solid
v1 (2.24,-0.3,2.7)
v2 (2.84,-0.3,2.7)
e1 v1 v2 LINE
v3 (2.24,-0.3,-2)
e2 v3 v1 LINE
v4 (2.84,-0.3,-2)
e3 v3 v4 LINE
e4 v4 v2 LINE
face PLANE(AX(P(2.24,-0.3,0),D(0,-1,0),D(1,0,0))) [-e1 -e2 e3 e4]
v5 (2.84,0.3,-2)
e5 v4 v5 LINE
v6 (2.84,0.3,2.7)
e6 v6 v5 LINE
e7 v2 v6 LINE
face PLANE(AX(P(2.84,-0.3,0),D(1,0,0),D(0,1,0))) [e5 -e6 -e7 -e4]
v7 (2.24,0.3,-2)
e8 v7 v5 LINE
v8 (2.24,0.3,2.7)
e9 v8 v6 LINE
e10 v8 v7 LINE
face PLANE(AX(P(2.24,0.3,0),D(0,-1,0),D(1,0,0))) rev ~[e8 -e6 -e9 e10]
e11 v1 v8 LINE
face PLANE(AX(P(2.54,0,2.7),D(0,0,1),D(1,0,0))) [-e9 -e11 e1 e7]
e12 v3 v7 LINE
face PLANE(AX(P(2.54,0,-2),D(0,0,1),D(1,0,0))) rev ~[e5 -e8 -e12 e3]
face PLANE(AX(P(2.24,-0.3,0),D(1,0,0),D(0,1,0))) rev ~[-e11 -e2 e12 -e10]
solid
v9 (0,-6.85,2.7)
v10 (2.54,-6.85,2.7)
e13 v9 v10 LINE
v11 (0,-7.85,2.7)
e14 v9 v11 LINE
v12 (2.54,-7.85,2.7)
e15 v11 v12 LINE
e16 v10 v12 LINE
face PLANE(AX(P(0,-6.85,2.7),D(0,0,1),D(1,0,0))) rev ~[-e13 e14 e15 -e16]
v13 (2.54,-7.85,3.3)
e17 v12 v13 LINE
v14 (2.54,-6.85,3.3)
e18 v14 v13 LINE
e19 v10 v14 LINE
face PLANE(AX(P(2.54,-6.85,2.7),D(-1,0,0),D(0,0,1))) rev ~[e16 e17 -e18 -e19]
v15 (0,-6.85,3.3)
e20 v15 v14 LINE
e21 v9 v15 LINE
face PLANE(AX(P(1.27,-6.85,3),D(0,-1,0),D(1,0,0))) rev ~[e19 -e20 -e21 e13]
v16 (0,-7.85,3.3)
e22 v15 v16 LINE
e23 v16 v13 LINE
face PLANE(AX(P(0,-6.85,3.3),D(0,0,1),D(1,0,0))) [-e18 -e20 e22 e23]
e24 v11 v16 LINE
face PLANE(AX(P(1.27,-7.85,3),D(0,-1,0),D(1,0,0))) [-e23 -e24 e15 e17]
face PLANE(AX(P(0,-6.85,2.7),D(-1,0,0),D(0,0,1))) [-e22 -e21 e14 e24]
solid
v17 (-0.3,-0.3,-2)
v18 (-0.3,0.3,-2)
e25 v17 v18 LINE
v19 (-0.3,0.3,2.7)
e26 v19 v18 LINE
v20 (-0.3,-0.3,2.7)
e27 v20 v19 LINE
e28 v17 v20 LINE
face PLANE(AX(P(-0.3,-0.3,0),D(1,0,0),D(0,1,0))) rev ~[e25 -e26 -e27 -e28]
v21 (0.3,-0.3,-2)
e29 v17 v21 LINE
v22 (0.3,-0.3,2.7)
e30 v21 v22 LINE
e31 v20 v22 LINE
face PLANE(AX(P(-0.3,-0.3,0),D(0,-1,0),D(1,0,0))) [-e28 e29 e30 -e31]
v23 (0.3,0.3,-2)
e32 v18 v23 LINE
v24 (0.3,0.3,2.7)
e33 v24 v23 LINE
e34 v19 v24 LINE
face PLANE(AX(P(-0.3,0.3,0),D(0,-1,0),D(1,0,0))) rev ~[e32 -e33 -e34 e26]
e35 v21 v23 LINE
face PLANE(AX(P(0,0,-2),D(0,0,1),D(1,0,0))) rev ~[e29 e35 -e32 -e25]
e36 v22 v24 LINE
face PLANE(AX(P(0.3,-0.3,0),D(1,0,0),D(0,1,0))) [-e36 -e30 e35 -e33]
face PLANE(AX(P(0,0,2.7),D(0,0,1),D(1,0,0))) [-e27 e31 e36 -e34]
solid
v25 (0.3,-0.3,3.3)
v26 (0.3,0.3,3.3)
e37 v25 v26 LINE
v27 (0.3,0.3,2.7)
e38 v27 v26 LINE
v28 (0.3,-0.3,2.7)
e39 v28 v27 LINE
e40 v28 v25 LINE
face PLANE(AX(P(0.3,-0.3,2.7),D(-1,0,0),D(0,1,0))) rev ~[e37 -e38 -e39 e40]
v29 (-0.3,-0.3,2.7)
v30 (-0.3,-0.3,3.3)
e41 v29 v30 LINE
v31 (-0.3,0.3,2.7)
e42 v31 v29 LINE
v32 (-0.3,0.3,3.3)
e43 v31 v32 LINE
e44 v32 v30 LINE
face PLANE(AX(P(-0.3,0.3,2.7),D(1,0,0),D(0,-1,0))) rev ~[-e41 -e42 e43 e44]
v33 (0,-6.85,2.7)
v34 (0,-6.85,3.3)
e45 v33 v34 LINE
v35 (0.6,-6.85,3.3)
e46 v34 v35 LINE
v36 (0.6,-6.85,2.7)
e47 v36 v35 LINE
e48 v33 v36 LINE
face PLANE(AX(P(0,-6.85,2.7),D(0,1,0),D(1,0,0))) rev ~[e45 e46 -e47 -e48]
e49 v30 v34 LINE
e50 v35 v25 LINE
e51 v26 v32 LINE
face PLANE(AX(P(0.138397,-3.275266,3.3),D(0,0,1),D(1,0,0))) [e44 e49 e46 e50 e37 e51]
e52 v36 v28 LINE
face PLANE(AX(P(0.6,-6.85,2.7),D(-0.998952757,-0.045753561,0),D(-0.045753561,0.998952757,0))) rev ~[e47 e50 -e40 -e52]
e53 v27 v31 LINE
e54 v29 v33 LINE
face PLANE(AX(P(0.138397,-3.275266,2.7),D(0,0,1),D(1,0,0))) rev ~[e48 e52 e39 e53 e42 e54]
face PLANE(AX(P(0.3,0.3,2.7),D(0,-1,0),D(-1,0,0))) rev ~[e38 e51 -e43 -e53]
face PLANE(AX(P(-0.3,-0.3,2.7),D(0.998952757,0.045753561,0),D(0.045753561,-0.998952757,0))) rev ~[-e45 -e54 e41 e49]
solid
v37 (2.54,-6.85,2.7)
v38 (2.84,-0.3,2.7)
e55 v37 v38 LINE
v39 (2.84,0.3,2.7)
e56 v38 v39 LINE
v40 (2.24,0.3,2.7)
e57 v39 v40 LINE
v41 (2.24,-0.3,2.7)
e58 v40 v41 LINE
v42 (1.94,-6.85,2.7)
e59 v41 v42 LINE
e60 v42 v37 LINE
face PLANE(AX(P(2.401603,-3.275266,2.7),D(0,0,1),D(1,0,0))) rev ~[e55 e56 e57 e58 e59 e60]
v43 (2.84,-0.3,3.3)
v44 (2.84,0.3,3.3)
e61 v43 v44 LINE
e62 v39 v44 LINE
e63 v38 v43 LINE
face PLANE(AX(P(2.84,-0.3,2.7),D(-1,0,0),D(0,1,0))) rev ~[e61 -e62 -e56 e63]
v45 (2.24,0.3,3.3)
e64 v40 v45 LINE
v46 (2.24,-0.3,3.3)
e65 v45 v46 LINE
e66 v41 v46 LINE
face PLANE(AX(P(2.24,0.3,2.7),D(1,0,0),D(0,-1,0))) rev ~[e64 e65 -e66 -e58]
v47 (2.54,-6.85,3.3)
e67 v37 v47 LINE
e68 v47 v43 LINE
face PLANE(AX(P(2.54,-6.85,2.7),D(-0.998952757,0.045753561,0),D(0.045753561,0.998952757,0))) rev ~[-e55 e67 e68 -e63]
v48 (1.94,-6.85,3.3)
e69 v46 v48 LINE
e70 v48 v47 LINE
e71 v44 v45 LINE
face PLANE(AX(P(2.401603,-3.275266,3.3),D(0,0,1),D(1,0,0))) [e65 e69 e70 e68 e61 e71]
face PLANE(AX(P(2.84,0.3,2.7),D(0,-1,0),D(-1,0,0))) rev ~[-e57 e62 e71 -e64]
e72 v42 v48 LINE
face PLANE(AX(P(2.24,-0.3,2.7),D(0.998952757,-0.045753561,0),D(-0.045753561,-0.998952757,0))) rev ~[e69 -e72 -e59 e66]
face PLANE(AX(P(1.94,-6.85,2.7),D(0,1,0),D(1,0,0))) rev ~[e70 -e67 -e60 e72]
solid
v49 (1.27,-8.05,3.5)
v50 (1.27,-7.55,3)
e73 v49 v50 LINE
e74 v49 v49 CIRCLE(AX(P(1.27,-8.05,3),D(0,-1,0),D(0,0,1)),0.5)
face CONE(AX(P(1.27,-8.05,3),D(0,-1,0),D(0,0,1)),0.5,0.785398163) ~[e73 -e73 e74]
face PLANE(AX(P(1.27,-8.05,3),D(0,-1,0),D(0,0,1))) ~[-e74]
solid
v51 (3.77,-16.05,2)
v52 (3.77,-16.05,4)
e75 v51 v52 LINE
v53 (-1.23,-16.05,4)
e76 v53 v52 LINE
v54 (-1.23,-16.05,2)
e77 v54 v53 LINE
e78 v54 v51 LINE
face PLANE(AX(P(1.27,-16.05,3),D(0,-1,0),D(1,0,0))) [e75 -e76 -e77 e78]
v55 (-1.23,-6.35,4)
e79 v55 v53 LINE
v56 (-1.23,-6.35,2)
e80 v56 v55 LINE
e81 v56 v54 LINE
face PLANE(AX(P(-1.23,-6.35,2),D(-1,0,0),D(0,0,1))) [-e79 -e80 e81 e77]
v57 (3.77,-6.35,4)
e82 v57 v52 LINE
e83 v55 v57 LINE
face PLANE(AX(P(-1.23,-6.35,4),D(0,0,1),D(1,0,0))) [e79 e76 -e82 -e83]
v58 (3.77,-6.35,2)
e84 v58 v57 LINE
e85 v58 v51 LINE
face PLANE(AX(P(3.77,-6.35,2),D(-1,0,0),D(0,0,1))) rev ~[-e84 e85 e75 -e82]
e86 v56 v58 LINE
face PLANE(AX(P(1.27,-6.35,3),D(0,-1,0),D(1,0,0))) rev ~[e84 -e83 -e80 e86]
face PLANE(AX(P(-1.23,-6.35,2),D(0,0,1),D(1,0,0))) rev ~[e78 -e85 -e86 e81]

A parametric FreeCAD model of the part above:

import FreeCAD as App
import Part
import Sketcher

doc = App.newDocument("Part")
body = doc.addObject("PartDesign::Body", "Body")
body.AllowCompound = True

sketch1 = doc.addObject("Sketcher::SketchObject", "Sketch")
body.addObject(sketch1)
sketch1.AttachmentSupport = (doc.XY_Plane, [""])
sketch1.MapMode = "FlatFace"
sketch1.addGeometry(Part.LineSegment(App.Vector(-0.3, 0.3, 0), App.Vector(-0.3, -0.3, 0)), False)
sketch1.addGeometry(Part.LineSegment(App.Vector(-0.3, -0.3, 0), App.Vector(0.3, -0.3, 0)), False)
sketch1.addGeometry(Part.LineSegment(App.Vector(0.3, -0.3, 0), App.Vector(0.3, 0.3, 0)), False)
sketch1.addGeometry(Part.LineSegment(App.Vector(0.3, 0.3, 0), App.Vector(-0.3, 0.3, 0)), False)
sketch1.addGeometry(Part.LineSegment(App.Vector(2.2, 0.3, 0), App.Vector(2.2, -0.3, 0)), False)
sketch1.addGeometry(Part.LineSegment(App.Vector(2.2, -0.3, 0), App.Vector(2.8, -0.3, 0)), False)
sketch1.addGeometry(Part.LineSegment(App.Vector(2.8, -0.3, 0), App.Vector(2.8, 0.3, 0)), False)
sketch1.addGeometry(Part.LineSegment(App.Vector(2.8, 0.3, 0), App.Vector(2.2, 0.3, 0)), False)
sketch1.addConstraint(Sketcher.Constraint("Coincident", 0, 2, 1, 1))
sketch1.addConstraint(Sketcher.Constraint("Coincident", 1, 2, 2, 1))
sketch1.addConstraint(Sketcher.Constraint("Coincident", 2, 2, 3, 1))
sketch1.addConstraint(Sketcher.Constraint("Coincident", 3, 2, 0, 1))
sketch1.addConstraint(Sketcher.Constraint("Coincident", 4, 2, 5, 1))
sketch1.addConstraint(Sketcher.Constraint("Coincident", 5, 2, 6, 1))
sketch1.addConstraint(Sketcher.Constraint("Coincident", 6, 2, 7, 1))
sketch1.addConstraint(Sketcher.Constraint("Coincident", 7, 2, 4, 1))
sketch1.addConstraint(Sketcher.Constraint("Vertical", 0))
sketch1.addConstraint(Sketcher.Constraint("Horizontal", 1))
sketch1.addConstraint(Sketcher.Constraint("Vertical", 2))
sketch1.addConstraint(Sketcher.Constraint("Horizontal", 3))
sketch1.addConstraint(Sketcher.Constraint("Vertical", 4))
sketch1.addConstraint(Sketcher.Constraint("Horizontal", 5))
sketch1.addConstraint(Sketcher.Constraint("Vertical", 6))
sketch1.addConstraint(Sketcher.Constraint("Horizontal", 7))
sketch1.addConstraint(Sketcher.Constraint("Symmetric", 0, 2, 2, 2, -1, 1))
sketch1.addConstraint(Sketcher.Constraint("Horizontal", 1, 2, 4, 2))
sketch1.addConstraint(Sketcher.Constraint("Horizontal", 3, 2, 6, 2))
sketch1.addConstraint(Sketcher.Constraint("Equal", 3, 5))
sketch1.addConstraint(Sketcher.Constraint("Equal", 7, 0))
sketch1.addConstraint(Sketcher.Constraint("DistanceX", 1, 1, 1, 2, 0.6))
sketch1.addConstraint(Sketcher.Constraint("DistanceX", -1, 1, 4, 2, 2.24))
pad1 = doc.addObject("PartDesign::Pad", "Pad")
body.addObject(pad1)
pad1.Profile = sketch1
pad1.Type = "TwoLengths"
pad1.Length = 2.7
pad1.Length2 = 2
body2 = doc.addObject("PartDesign::Body", "Body001")
body2.AllowCompound = True

sketch2 = doc.addObject("Sketcher::SketchObject", "Sketch001")
body2.addObject(sketch2)
sketch2.AttachmentSupport = (doc.getObject("XY_Plane001"), [""])
sketch2.MapMode = "FlatFace"
sketch2.AttachmentOffset = App.Placement(App.Vector(0, 0, 2.7), App.Rotation())
sketch2.addGeometry(Part.LineSegment(App.Vector(0.3, 0.3, 0), App.Vector(-0.3, 0.3, 0)), False)
sketch2.addGeometry(Part.LineSegment(App.Vector(-0.3, 0.3, 0), App.Vector(-0.3, -0.3, 0)), False)
sketch2.addGeometry(Part.LineSegment(App.Vector(-0.3, -0.3, 0), App.Vector(0, -6.8, 0)), False)
sketch2.addGeometry(Part.LineSegment(App.Vector(0, -6.8, 0), App.Vector(0.6, -6.8, 0)), False)
sketch2.addGeometry(Part.LineSegment(App.Vector(0.6, -6.8, 0), App.Vector(0.3, -0.3, 0)), False)
sketch2.addGeometry(Part.LineSegment(App.Vector(0.3, -0.3, 0), App.Vector(0.3, 0.3, 0)), False)
sketch2.addGeometry(Part.LineSegment(App.Vector(2.8, 0.3, 0), App.Vector(2.2, 0.3, 0)), False)
sketch2.addGeometry(Part.LineSegment(App.Vector(2.2, 0.3, 0), App.Vector(2.2, -0.3, 0)), False)
sketch2.addGeometry(Part.LineSegment(App.Vector(2.2, -0.3, 0), App.Vector(1.9, -6.8, 0)), False)
sketch2.addGeometry(Part.LineSegment(App.Vector(1.9, -6.8, 0), App.Vector(2.5, -6.8, 0)), False)
sketch2.addGeometry(Part.LineSegment(App.Vector(2.5, -6.8, 0), App.Vector(2.8, -0.3, 0)), False)
sketch2.addGeometry(Part.LineSegment(App.Vector(2.8, -0.3, 0), App.Vector(2.8, 0.3, 0)), False)
sketch2.addConstraint(Sketcher.Constraint("Coincident", 0, 2, 1, 1))
sketch2.addConstraint(Sketcher.Constraint("Coincident", 1, 2, 2, 1))
sketch2.addConstraint(Sketcher.Constraint("Coincident", 2, 2, 3, 1))
sketch2.addConstraint(Sketcher.Constraint("Coincident", 3, 2, 4, 1))
sketch2.addConstraint(Sketcher.Constraint("Coincident", 4, 2, 5, 1))
sketch2.addConstraint(Sketcher.Constraint("Coincident", 5, 2, 0, 1))
sketch2.addConstraint(Sketcher.Constraint("Coincident", 6, 2, 7, 1))
sketch2.addConstraint(Sketcher.Constraint("Coincident", 7, 2, 8, 1))
sketch2.addConstraint(Sketcher.Constraint("Coincident", 8, 2, 9, 1))
sketch2.addConstraint(Sketcher.Constraint("Coincident", 9, 2, 10, 1))
sketch2.addConstraint(Sketcher.Constraint("Coincident", 10, 2, 11, 1))
sketch2.addConstraint(Sketcher.Constraint("Coincident", 11, 2, 6, 1))
sketch2.addConstraint(Sketcher.Constraint("Horizontal", 0))
sketch2.addConstraint(Sketcher.Constraint("Vertical", 1))
sketch2.addConstraint(Sketcher.Constraint("Horizontal", 3))
sketch2.addConstraint(Sketcher.Constraint("Vertical", 5))
sketch2.addConstraint(Sketcher.Constraint("Horizontal", 6))
sketch2.addConstraint(Sketcher.Constraint("Vertical", 7))
sketch2.addConstraint(Sketcher.Constraint("Horizontal", 9))
sketch2.addConstraint(Sketcher.Constraint("Vertical", 11))
sketch2.addConstraint(Sketcher.Constraint("Symmetric", 0, 2, 4, 2, -1, 1))
sketch2.addConstraint(Sketcher.Constraint("PointOnObject", 2, 2, -2))
sketch2.addConstraint(Sketcher.Constraint("Parallel", 2, 4))
sketch2.addConstraint(Sketcher.Constraint("Parallel", 8, 10))
sketch2.addConstraint(Sketcher.Constraint("Horizontal", 1, 2, 4, 2))
sketch2.addConstraint(Sketcher.Constraint("Horizontal", 5, 2, 6, 2))
sketch2.addConstraint(Sketcher.Constraint("Horizontal", 4, 2, 7, 2))
sketch2.addConstraint(Sketcher.Constraint("Horizontal", 3, 2, 8, 2))
sketch2.addConstraint(Sketcher.Constraint("Horizontal", 7, 2, 10, 2))
sketch2.addConstraint(Sketcher.Constraint("Equal", 3, 6))
sketch2.addConstraint(Sketcher.Constraint("Equal", 9, 1))
sketch2.addConstraint(Sketcher.Constraint("Equal", 4, 8))
sketch2.addConstraint(Sketcher.Constraint("DistanceX", 0, 2, 0, 1, 0.6))
sketch2.addConstraint(Sketcher.Constraint("DistanceY", 2, 2, -1, 1, 6.85))
sketch2.addConstraint(Sketcher.Constraint("DistanceX", -1, 1, 6, 2, 2.24))
pad2 = doc.addObject("PartDesign::Pad", "Pad001")
body2.addObject(pad2)
pad2.Profile = sketch2
pad2.Length = 0.6
body3 = doc.addObject("PartDesign::Body", "Body002")

sketch3 = doc.addObject("Sketcher::SketchObject", "Sketch002")
body3.addObject(sketch3)
sketch3.AttachmentSupport = (doc.getObject("XZ_Plane002"), [""])
sketch3.MapMode = "FlatFace"
sketch3.AttachmentOffset = App.Placement(App.Vector(0, 0, 6.85), App.Rotation())
sketch3.addGeometry(Part.LineSegment(App.Vector(0, 3.3, 0), App.Vector(0, 2.7, 0)), False)
sketch3.addGeometry(Part.LineSegment(App.Vector(0, 2.7, 0), App.Vector(2.5, 2.7, 0)), False)
sketch3.addGeometry(Part.LineSegment(App.Vector(2.5, 2.7, 0), App.Vector(2.5, 3.3, 0)), False)
sketch3.addGeometry(Part.LineSegment(App.Vector(2.5, 3.3, 0), App.Vector(0, 3.3, 0)), False)
sketch3.addConstraint(Sketcher.Constraint("Coincident", 0, 2, 1, 1))
sketch3.addConstraint(Sketcher.Constraint("Coincident", 1, 2, 2, 1))
sketch3.addConstraint(Sketcher.Constraint("Coincident", 2, 2, 3, 1))
sketch3.addConstraint(Sketcher.Constraint("Coincident", 3, 2, 0, 1))
sketch3.addConstraint(Sketcher.Constraint("Vertical", 0))
sketch3.addConstraint(Sketcher.Constraint("Horizontal", 1))
sketch3.addConstraint(Sketcher.Constraint("Vertical", 2))
sketch3.addConstraint(Sketcher.Constraint("Horizontal", 3))
sketch3.addConstraint(Sketcher.Constraint("PointOnObject", 0, 2, -2))
sketch3.addConstraint(Sketcher.Constraint("DistanceY", 0, 2, 0, 1, 0.6))
sketch3.addConstraint(Sketcher.Constraint("DistanceX", 1, 1, 1, 2, 2.54))
sketch3.addConstraint(Sketcher.Constraint("DistanceY", -1, 1, 0, 2, 2.7))
pad3 = doc.addObject("PartDesign::Pad", "Pad002")
body3.addObject(pad3)
pad3.Profile = sketch3
pad3.Length = 1
body4 = doc.addObject("PartDesign::Body", "Body003")

sketch4 = doc.addObject("Sketcher::SketchObject", "Sketch003")
body4.addObject(sketch4)
sketch4.AttachmentSupport = (doc.getObject("XZ_Plane003"), [""])
sketch4.MapMode = "FlatFace"
sketch4.AttachmentOffset = App.Placement(App.Vector(0, 0, 6.35), App.Rotation())
sketch4.addGeometry(Part.LineSegment(App.Vector(-1.2, 4, 0), App.Vector(-1.2, 2, 0)), False)
sketch4.addGeometry(Part.LineSegment(App.Vector(-1.2, 2, 0), App.Vector(3.8, 2, 0)), False)
sketch4.addGeometry(Part.LineSegment(App.Vector(3.8, 2, 0), App.Vector(3.8, 4, 0)), False)
sketch4.addGeometry(Part.LineSegment(App.Vector(3.8, 4, 0), App.Vector(-1.2, 4, 0)), False)
sketch4.addConstraint(Sketcher.Constraint("Coincident", 0, 2, 1, 1))
sketch4.addConstraint(Sketcher.Constraint("Coincident", 1, 2, 2, 1))
sketch4.addConstraint(Sketcher.Constraint("Coincident", 2, 2, 3, 1))
sketch4.addConstraint(Sketcher.Constraint("Coincident", 3, 2, 0, 1))
sketch4.addConstraint(Sketcher.Constraint("Vertical", 0))
sketch4.addConstraint(Sketcher.Constraint("Horizontal", 1))
sketch4.addConstraint(Sketcher.Constraint("Vertical", 2))
sketch4.addConstraint(Sketcher.Constraint("Horizontal", 3))
sketch4.addConstraint(Sketcher.Constraint("DistanceX", 1, 1, 1, 2, 5.0))
sketch4.addConstraint(Sketcher.Constraint("DistanceY", 0, 2, 0, 1, 2.0))
sketch4.addConstraint(Sketcher.Constraint("DistanceY", -1, 1, 0, 2, 2.0))
sketch4.addConstraint(Sketcher.Constraint("DistanceX", 0, 2, -1, 1, 1.23))
pad4 = doc.addObject("PartDesign::Pad", "Pad003")
body4.addObject(pad4)
pad4.Profile = sketch4
pad4.Length = 9.7
body5 = doc.addObject("PartDesign::Body", "Body004")

sketch5 = doc.addObject("Sketcher::SketchObject", "Sketch004")
body5.addObject(sketch5)
sketch5.AttachmentSupport = (doc.getObject("YZ_Plane004"), [""])
sketch5.MapMode = "FlatFace"
sketch5.AttachmentOffset = App.Placement(App.Vector(0, 0, 1.27), App.Rotation())
sketch5.addGeometry(Part.LineSegment(App.Vector(-8.1, 3, 0), App.Vector(-7.5, 3, 0)), False)
sketch5.addGeometry(Part.LineSegment(App.Vector(-7.5, 3, 0), App.Vector(-8.1, 3.5, 0)), False)
sketch5.addGeometry(Part.LineSegment(App.Vector(-8.1, 3.5, 0), App.Vector(-8.1, 3, 0)), False)
sketch5.addGeometry(Part.LineSegment(App.Vector(-7.5, 3, 0), App.Vector(-8.1, 3, 0)), True)
sketch5.addConstraint(Sketcher.Constraint("Coincident", 0, 2, 1, 1))
sketch5.addConstraint(Sketcher.Constraint("Coincident", 1, 2, 2, 1))
sketch5.addConstraint(Sketcher.Constraint("Coincident", 2, 2, 0, 1))
sketch5.addConstraint(Sketcher.Constraint("Horizontal", 0))
sketch5.addConstraint(Sketcher.Constraint("Vertical", 2))
sketch5.addConstraint(Sketcher.Constraint("Horizontal", 3))
sketch5.addConstraint(Sketcher.Constraint("Coincident", 3, 1, 0, 2))
sketch5.addConstraint(Sketcher.Constraint("Vertical", 1, 2, 3, 2))
sketch5.addConstraint(Sketcher.Constraint("Equal", 3, 2))
sketch5.addConstraint(Sketcher.Constraint("DistanceX", 0, 1, 0, 2, 0.5))
sketch5.addConstraint(Sketcher.Constraint("DistanceY", -1, 1, 0, 2, 3.0))
sketch5.addConstraint(Sketcher.Constraint("DistanceX", 0, 2, -1, 1, 7.55))
revolution = doc.addObject("PartDesign::Revolution", "Revolution")
body5.addObject(revolution)
revolution.Profile = sketch5
revolution.ReferenceAxis = (sketch5, ["Axis0"])
revolution.Angle = 360

doc.recompute()
